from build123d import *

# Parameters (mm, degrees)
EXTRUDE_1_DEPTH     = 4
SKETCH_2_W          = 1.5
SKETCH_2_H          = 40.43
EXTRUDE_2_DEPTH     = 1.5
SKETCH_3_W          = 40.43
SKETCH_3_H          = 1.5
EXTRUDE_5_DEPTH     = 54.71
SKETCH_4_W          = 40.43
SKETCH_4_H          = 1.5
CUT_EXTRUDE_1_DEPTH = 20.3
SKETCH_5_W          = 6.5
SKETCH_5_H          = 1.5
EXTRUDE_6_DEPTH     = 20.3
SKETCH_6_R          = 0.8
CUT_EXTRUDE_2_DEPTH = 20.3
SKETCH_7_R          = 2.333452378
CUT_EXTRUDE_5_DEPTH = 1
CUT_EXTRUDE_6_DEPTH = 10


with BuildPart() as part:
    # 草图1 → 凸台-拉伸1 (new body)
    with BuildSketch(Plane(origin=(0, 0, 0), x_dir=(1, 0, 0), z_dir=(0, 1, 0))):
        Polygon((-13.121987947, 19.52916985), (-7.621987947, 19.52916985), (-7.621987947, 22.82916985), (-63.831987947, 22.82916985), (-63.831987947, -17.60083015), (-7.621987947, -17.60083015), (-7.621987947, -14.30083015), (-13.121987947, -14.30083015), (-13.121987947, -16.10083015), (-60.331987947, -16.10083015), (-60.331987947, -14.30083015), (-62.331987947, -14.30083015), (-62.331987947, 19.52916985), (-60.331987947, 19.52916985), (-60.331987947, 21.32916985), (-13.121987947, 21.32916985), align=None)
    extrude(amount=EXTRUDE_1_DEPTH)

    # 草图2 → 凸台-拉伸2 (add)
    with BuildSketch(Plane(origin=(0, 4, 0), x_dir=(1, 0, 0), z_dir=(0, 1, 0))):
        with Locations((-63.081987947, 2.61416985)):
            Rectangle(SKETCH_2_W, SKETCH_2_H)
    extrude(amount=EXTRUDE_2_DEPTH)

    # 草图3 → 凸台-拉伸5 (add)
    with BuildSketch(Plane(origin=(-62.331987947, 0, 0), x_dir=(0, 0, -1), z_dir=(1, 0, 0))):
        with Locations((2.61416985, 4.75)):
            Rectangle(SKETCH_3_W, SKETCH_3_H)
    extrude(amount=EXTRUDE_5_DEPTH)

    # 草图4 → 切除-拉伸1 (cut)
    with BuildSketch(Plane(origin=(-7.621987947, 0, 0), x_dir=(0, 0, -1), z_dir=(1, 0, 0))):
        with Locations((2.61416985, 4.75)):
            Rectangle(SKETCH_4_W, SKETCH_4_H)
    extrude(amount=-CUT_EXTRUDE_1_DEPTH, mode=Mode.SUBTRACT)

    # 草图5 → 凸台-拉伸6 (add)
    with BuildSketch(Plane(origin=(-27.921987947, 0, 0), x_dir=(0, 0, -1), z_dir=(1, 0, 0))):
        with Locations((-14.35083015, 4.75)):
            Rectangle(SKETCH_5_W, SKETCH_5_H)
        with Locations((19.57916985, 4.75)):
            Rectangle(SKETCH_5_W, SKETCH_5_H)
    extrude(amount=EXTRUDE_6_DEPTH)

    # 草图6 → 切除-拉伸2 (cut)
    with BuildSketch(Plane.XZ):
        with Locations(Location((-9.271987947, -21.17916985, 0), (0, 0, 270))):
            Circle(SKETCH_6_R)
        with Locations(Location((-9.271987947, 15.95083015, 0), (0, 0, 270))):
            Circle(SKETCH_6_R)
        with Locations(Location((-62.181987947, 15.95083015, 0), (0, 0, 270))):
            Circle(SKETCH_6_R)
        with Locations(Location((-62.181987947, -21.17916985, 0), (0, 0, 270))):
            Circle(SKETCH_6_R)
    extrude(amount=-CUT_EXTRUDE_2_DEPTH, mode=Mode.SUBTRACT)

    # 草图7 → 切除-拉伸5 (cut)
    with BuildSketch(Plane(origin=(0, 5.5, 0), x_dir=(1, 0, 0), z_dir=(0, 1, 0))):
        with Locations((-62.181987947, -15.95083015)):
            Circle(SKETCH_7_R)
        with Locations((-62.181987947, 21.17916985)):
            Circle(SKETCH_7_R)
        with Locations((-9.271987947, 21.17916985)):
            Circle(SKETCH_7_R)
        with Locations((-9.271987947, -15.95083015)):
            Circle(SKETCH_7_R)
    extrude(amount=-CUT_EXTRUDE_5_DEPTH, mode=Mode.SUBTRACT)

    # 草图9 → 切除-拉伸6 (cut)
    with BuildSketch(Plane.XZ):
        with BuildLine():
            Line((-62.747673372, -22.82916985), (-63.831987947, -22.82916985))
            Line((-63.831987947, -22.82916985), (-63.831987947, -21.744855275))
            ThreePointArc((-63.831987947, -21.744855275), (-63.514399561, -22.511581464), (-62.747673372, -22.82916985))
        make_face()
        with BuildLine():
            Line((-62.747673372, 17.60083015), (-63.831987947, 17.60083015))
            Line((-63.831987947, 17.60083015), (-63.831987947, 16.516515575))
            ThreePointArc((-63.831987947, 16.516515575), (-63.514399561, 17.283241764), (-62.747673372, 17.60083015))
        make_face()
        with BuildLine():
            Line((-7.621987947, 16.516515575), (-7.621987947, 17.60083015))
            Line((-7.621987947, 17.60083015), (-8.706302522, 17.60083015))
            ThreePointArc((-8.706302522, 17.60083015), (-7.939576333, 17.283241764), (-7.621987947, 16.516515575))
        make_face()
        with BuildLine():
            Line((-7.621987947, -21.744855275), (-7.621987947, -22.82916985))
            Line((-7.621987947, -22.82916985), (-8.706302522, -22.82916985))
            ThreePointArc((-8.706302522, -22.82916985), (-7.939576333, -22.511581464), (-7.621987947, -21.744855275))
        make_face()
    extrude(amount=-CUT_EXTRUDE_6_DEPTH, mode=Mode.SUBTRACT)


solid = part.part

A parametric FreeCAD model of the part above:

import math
import FreeCAD as App
import Part
import Sketcher

V = App.Vector
Q = App.Units.Quantity

doc = App.newDocument("Part")
body = doc.addObject("PartDesign::Body", "Body")

# Sketch on XZ plane
sketch1 = body.newObject("Sketcher::SketchObject", "Sketch")
sketch1.AttachmentSupport = (doc.getObject("XZ_Plane"), [""])
sketch1.MapMode = "FlatFace"
sketch1.addGeometry([
    Part.LineSegment(V(-13.1, -19.5, 0), V(-7.6, -19.5, 0)),  # 0
    Part.LineSegment(V(-7.6, -19.5, 0), V(-7.6, -22.8, 0)),  # 1
    Part.LineSegment(V(-7.6, -22.8, 0), V(-63.8, -22.8, 0)),  # 2
    Part.LineSegment(V(-63.8, -22.8, 0), V(-63.8, 17.6, 0)),  # 3
    Part.LineSegment(V(-63.8, 17.6, 0), V(-7.6, 17.6, 0)),  # 4
    Part.LineSegment(V(-7.6, 17.6, 0), V(-7.6, 14.3, 0)),  # 5
    Part.LineSegment(V(-7.6, 14.3, 0), V(-13.1, 14.3, 0)),  # 6
    Part.LineSegment(V(-13.1, 14.3, 0), V(-13.1, 16.1, 0)),  # 7
    Part.LineSegment(V(-13.1, 16.1, 0), V(-60.3, 16.1, 0)),  # 8
    Part.LineSegment(V(-60.3, 16.1, 0), V(-60.3, 14.3, 0)),  # 9
    Part.LineSegment(V(-60.3, 14.3, 0), V(-62.3, 14.3, 0)),  # 10
    Part.LineSegment(V(-62.3, 14.3, 0), V(-62.3, -19.5, 0)),  # 11
    Part.LineSegment(V(-62.3, -19.5, 0), V(-60.3, -19.5, 0)),  # 12
    Part.LineSegment(V(-60.3, -19.5, 0), V(-60.3, -21.3, 0)),  # 13
    Part.LineSegment(V(-60.3, -21.3, 0), V(-13.1, -21.3, 0)),  # 14
    Part.LineSegment(V(-13.1, -21.3, 0), V(-13.1, -19.5, 0)),  # 15
], False)
sketch1.addConstraint([
    Sketcher.Constraint("Coincident", 0, 2, 1, 1),
    Sketcher.Constraint("Coincident", 1, 2, 2, 1),
    Sketcher.Constraint("Coincident", 2, 2, 3, 1),
    Sketcher.Constraint("Coincident", 3, 2, 4, 1),
    Sketcher.Constraint("Coincident", 4, 2, 5, 1),
    Sketcher.Constraint("Coincident", 5, 2, 6, 1),
    Sketcher.Constraint("Coincident", 6, 2, 7, 1),
    Sketcher.Constraint("Coincident", 7, 2, 8, 1),
    Sketcher.Constraint("Coincident", 8, 2, 9, 1),
    Sketcher.Constraint("Coincident", 9, 2, 10, 1),
    Sketcher.Constraint("Coincident", 10, 2, 11, 1),
    Sketcher.Constraint("Coincident", 11, 2, 12, 1),
    Sketcher.Constraint("Coincident", 12, 2, 13, 1),
    Sketcher.Constraint("Coincident", 13, 2, 14, 1),
    Sketcher.Constraint("Coincident", 14, 2, 15, 1),
    Sketcher.Constraint("Coincident", 15, 2, 0, 1),
    Sketcher.Constraint("Horizontal", 0),
    Sketcher.Constraint("Vertical", 1),
    Sketcher.Constraint("Horizontal", 2),
    Sketcher.Constraint("Vertical", 3),
    Sketcher.Constraint("Horizontal", 4),
    Sketcher.Constraint("Vertical", 5),
    Sketcher.Constraint("Horizontal", 6),
    Sketcher.Constraint("Vertical", 7),
    Sketcher.Constraint("Horizontal", 8),
    Sketcher.Constraint("Vertical", 9),
    Sketcher.Constraint("Horizontal", 10),
    Sketcher.Constraint("Vertical", 11),
    Sketcher.Constraint("Horizontal", 12),
    Sketcher.Constraint("Vertical", 13),
    Sketcher.Constraint("Horizontal", 14),
    Sketcher.Constraint("Vertical", 15),
    Sketcher.Constraint("Horizontal", 6, 2, 9, 2),
    Sketcher.Constraint("Horizontal", 0, 2, 11, 2),
    Sketcher.Constraint("Vertical", 1, 2, 4, 2),
    Sketcher.Constraint("Vertical", 9, 2, 12, 2),
    Sketcher.Constraint("Vertical", 7, 2, 14, 2),
    Sketcher.Constraint("Equal", 1, 5),
    Sketcher.Constraint("Equal", 9, 13),
    Sketcher.Constraint("DistanceX", 10, 2, 10, 1, Q("2 mm")),
    Sketcher.Constraint("DistanceX", 0, 1, 0, 2, Q("5.5 mm")),
    Sketcher.Constraint("DistanceY", 1, 2, 1, 1, Q("3.3 mm")),
    Sketcher.Constraint("DistanceY", 7, 1, 7, 2, Q("1.8 mm")),
    Sketcher.Constraint("DistanceX", 2, 2, 2, 1, Q("56.21 mm")),
    Sketcher.Constraint("DistanceX", 8, 2, 8, 1, Q("47.21 mm")),
    Sketcher.Constraint("DistanceY", 3, 1, 3, 2, Q("40.43 mm")),
    Sketcher.Constraint("DistanceY", 0, 2, -1, 1, Q("19.52917 mm")),
    Sketcher.Constraint("DistanceX", 0, 2, -1, 1, Q("7.621988 mm")),
])
pad1 = body.newObject("PartDesign::Pad", "Pad")
pad1.Profile = sketch1
pad1.Length = 4
pad1.Reversed = True

# Sketch on XZ plane
sketch2 = body.newObject("Sketcher::SketchObject", "Sketch001")
sketch2.AttachmentSupport = (doc.getObject("XZ_Plane"), [""])
sketch2.MapMode = "FlatFace"
sketch2.AttachmentOffset = App.Placement(V(0, 0, -4), App.Rotation())
sketch2.addGeometry([
    Part.LineSegment(V(-63.8, -22.8, 0), V(-63.8, 17.6, 0)),
    Part.LineSegment(V(-63.8, 17.6, 0), V(-62.3, 17.6, 0)),
    Part.LineSegment(V(-62.3, 17.6, 0), V(-62.3, -22.8, 0)),
    Part.LineSegment(V(-62.3, -22.8, 0), V(-63.8, -22.8, 0)),
], False)
sketch2.addConstraint([
    Sketcher.Constraint("Coincident", 0, 2, 1, 1),
    Sketcher.Constraint("Coincident", 1, 2, 2, 1),
    Sketcher.Constraint("Coincident", 2, 2, 3, 1),
    Sketcher.Constraint("Coincident", 3, 2, 0, 1),
    Sketcher.Constraint("Vertical", 0),
    Sketcher.Constraint("Horizontal", 1),
    Sketcher.Constraint("Vertical", 2),
    Sketcher.Constraint("Horizontal", 3),
    Sketcher.Constraint("DistanceX", 1, 1, 1, 2, Q("1.5 mm")),
    Sketcher.Constraint("DistanceY", 0, 1, 0, 2, Q("40.43 mm")),
    Sketcher.Constraint("DistanceY", -1, 1, 0, 2, Q("17.60083 mm")),
    Sketcher.Constraint("DistanceX", 0, 2, -1, 1, Q("63.831988 mm")),
])
pad2 = body.newObject("PartDesign::Pad", "Pad001")
pad2.Profile = sketch2
pad2.Length = 1.5
pad2.Reversed = True

# Sketch on YZ plane
sketch3 = body.newObject("Sketcher::SketchObject", "Sketch002")
sketch3.AttachmentSupport = (doc.getObject("YZ_Plane"), [""])
sketch3.MapMode = "FlatFace"
sketch3.AttachmentOffset = App.Placement(V(0, 0, -62.331988), App.Rotation())
sketch3.addGeometry([
    Part.LineSegment(V(5.5, 17.6, 0), V(4, 17.6, 0)),
    Part.LineSegment(V(4, 17.6, 0), V(4, -22.8, 0)),
    Part.LineSegment(V(4, -22.8, 0), V(5.5, -22.8, 0)),
    Part.LineSegment(V(5.5, -22.8, 0), V(5.5, 17.6, 0)),
], False)
sketch3.addConstraint([
    Sketcher.Constraint("Coincident", 0, 2, 1, 1),
    Sketcher.Constraint("Coincident", 1, 2, 2, 1),
    Sketcher.Constraint("Coincident", 2, 2, 3, 1),
    Sketcher.Constraint("Coincident", 3, 2, 0, 1),
    Sketcher.Constraint("Horizontal", 0),
    Sketcher.Constraint("Vertical", 1),
    Sketcher.Constraint("Horizontal", 2),
    Sketcher.Constraint("Vertical", 3),
    Sketcher.Constraint("DistanceX", 0, 2, 0, 1, Q("1.5 mm")),
    Sketcher.Constraint("DistanceX", -1, 1, 0, 2, Q("4 mm")),
    Sketcher.Constraint("DistanceY", 1, 2, 1, 1, Q("40.43 mm")),
    Sketcher.Constraint("DistanceY", -1, 1, 0, 2, Q("17.60083 mm")),
])
pad3 = body.newObject("PartDesign::Pad", "Pad002")
pad3.Profile = sketch3
pad3.Length = 54.71

# Sketch on YZ plane
sketch4 = body.newObject("Sketcher::SketchObject", "Sketch003")
sketch4.AttachmentSupport = (doc.getObject("YZ_Plane"), [""])
sketch4.MapMode = "FlatFace"
sketch4.AttachmentOffset = App.Placement(V(0, 0, -7.621988), App.Rotation())
sketch4.addGeometry([
    Part.LineSegment(V(5.5, 17.6, 0), V(4, 17.6, 0)),
    Part.LineSegment(V(4, 17.6, 0), V(4, -22.8, 0)),
    Part.LineSegment(V(4, -22.8, 0), V(5.5, -22.8, 0)),
    Part.LineSegment(V(5.5, -22.8, 0), V(5.5, 17.6, 0)),
], False)
sketch4.addConstraint([
    Sketcher.Constraint("Coincident", 0, 2, 1, 1),
    Sketcher.Constraint("Coincident", 1, 2, 2, 1),
    Sketcher.Constraint("Coincident", 2, 2, 3, 1),
    Sketcher.Constraint("Coincident", 3, 2, 0, 1),
    Sketcher.Constraint("Horizontal", 0),
    Sketcher.Constraint("Vertical", 1),
    Sketcher.Constraint("Horizontal", 2),
    Sketcher.Constraint("Vertical", 3),
    Sketcher.Constraint("DistanceX", 0, 2, 0, 1, Q("1.5 mm")),
    Sketcher.Constraint("DistanceX", -1, 1, 0, 2, Q("4 mm")),
    Sketcher.Constraint("DistanceY", 1, 2, 1, 1, Q("40.43 mm")),
    Sketcher.Constraint("DistanceY", -1, 1, 0, 2, Q("17.60083 mm")),
])
pocket1 = body.newObject("PartDesign::Pocket", "Pocket")
pocket1.Profile = sketch4
pocket1.Length = 20.3

# Sketch on YZ plane
sketch5 = body.newObject("Sketcher::SketchObject", "Sketch004")
sketch5.AttachmentSupport = (doc.getObject("YZ_Plane"), [""])
sketch5.MapMode = "FlatFace"
sketch5.AttachmentOffset = App.Placement(V(0, 0, -27.921988), App.Rotation())
sketch5.addGeometry([
    Part.LineSegment(V(5.5, 17.6, 0), V(4, 17.6, 0)),  # 0
    Part.LineSegment(V(4, 17.6, 0), V(4, 11.1, 0)),  # 1
    Part.LineSegment(V(4, 11.1, 0), V(5.5, 11.1, 0)),  # 2
    Part.LineSegment(V(5.5, 11.1, 0), V(5.5, 17.6, 0)),  # 3
    Part.LineSegment(V(5.5, -16.3, 0), V(4, -16.3, 0)),  # 4
    Part.LineSegment(V(4, -16.3, 0), V(4, -22.8, 0)),  # 5
    Part.LineSegment(V(4, -22.8, 0), V(5.5, -22.8, 0)),  # 6
    Part.LineSegment(V(5.5, -22.8, 0), V(5.5, -16.3, 0)),  # 7
], False)
sketch5.addConstraint([
    Sketcher.Constraint("Coincident", 0, 2, 1, 1),
    Sketcher.Constraint("Coincident", 1, 2, 2, 1),
    Sketcher.Constraint("Coincident", 2, 2, 3, 1),
    Sketcher.Constraint("Coincident", 3, 2, 0, 1),
    Sketcher.Constraint("Coincident", 4, 2, 5, 1),
    Sketcher.Constraint("Coincident", 5, 2, 6, 1),
    Sketcher.Constraint("Coincident", 6, 2, 7, 1),
    Sketcher.Constraint("Coincident", 7, 2, 4, 1),
    Sketcher.Constraint("Horizontal", 0),
    Sketcher.Constraint("Vertical", 1),
    Sketcher.Constraint("Horizontal", 2),
    Sketcher.Constraint("Vertical", 3),
    Sketcher.Constraint("Horizontal", 4),
    Sketcher.Constraint("Vertical", 5),
    Sketcher.Constraint("Horizontal", 6),
    Sketcher.Constraint("Vertical", 7),
    Sketcher.Constraint("Vertical", 1, 2, 4, 2),
    Sketcher.Constraint("Vertical", 3, 2, 6, 2),
    Sketcher.Constraint("Equal", 3, 5),
    Sketcher.Constraint("DistanceX", 0, 2, 0, 1, Q("1.5 mm")),
    Sketcher.Constraint("DistanceY", 1, 2, 1, 1, Q("6.5 mm")),
    Sketcher.Constraint("DistanceX", -1, 1, 0, 2, Q("4 mm")),
    Sketcher.Constraint("DistanceY", 4, 2, 1, 2, Q("27.43 mm")),
    Sketcher.Constraint("DistanceY", -1, 1, 0, 2, Q("17.60083 mm")),
])
pad4 = body.newObject("PartDesign::Pad", "Pad003")
pad4.Profile = sketch5
pad4.Length = 20.3

# Sketch on XZ plane
sketch6 = body.newObject("Sketcher::SketchObject", "Sketch005")
sketch6.AttachmentSupport = (doc.getObject("XZ_Plane"), [""])
sketch6.MapMode = "FlatFace"
sketch6.addGeometry([
    Part.Circle(V(-9.3, -21.2, 0), V(0, 0, 1), 0.8),
    Part.Circle(V(-9.3, 16, 0), V(0, 0, 1), 0.8),
    Part.Circle(V(-62.2, 16, 0), V(0, 0, 1), 0.8),
    Part.Circle(V(-62.2, -21.2, 0), V(0, 0, 1), 0.8),
], False)
sketch6.addConstraint([
    Sketcher.Constraint("Equal", 0, 1),
    Sketcher.Constraint("Equal", 1, 2),
    Sketcher.Constraint("Equal", 2, 3),
    Sketcher.Constraint("Horizontal", 1, 3, 2, 3),
    Sketcher.Constraint("Horizontal", 0, 3, 3, 3),
    Sketcher.Constraint("Vertical", 0, 3, 1, 3),
    Sketcher.Constraint("Vertical", 2, 3, 3, 3),
    Sketcher.Constraint("Diameter", 0, Q("1.6 mm")),
    Sketcher.Constraint("DistanceY", 0, 3, 1, 3, Q("37.13 mm")),
    Sketcher.Constraint("DistanceX", 2, 3, 1, 3, Q("52.91 mm")),
    Sketcher.Constraint("DistanceY", 0, 3, -1, 1, Q("21.17917 mm")),
    Sketcher.Constraint("DistanceX", 0, 3, -1, 1, Q("9.271988 mm")),
])
pocket2 = body.newObject("PartDesign::Pocket", "Pocket001")
pocket2.Profile = sketch6
pocket2.Length = 20.3

# Sketch on XZ plane
sketch7 = body.newObject("Sketcher::SketchObject", "Sketch006")
sketch7.AttachmentSupport = (doc.getObject("XZ_Plane"), [""])
sketch7.MapMode = "FlatFace"
sketch7.AttachmentOffset = App.Placement(V(0, 0, -5.5), App.Rotation())
sketch7.addGeometry([
    Part.Circle(V(-62.2, 16, 0), V(0, 0, 1), 2.3),
    Part.Circle(V(-62.2, -21.2, 0), V(0, 0, 1), 2.3),
    Part.Circle(V(-9.3, -21.2, 0), V(0, 0, 1), 2.3),
    Part.Circle(V(-9.3, 16, 0), V(0, 0, 1), 2.3),
], False)
sketch7.addConstraint([
    Sketcher.Constraint("Equal", 0, 1),
    Sketcher.Constraint("Equal", 1, 2),
    Sketcher.Constraint("Equal", 2, 3),
    Sketcher.Constraint("Horizontal", 1, 3, 2, 3),
    Sketcher.Constraint("Horizontal", 0, 3, 3, 3),
    Sketcher.Constraint("Vertical", 0, 3, 1, 3),
    Sketcher.Constraint("Vertical", 2, 3, 3, 3),
    Sketcher.Constraint("DistanceY", 1, 3, 0, 3, Q("37.13 mm")),
    Sketcher.Constraint("DistanceX", 1, 3, 2, 3, Q("52.91 mm")),
    Sketcher.Constraint("Diameter", 0, Q("4.666905 mm")),
    Sketcher.Constraint("DistanceY", -1, 1, 0, 3, Q("15.95083 mm")),
    Sketcher.Constraint("DistanceX", 0, 3, -1, 1, Q("62.181988 mm")),
])
pocket3 = body.newObject("PartDesign::Pocket", "Pocket002")
pocket3.Profile = sketch7
pocket3.Length = 1
pocket3.Reversed = True

# Sketch on XZ plane
sketch8 = body.newObject("Sketcher::SketchObject", "Sketch007")
sketch8.AttachmentSupport = (doc.getObject("XZ_Plane"), [""])
sketch8.MapMode = "FlatFace"
sketch8.addGeometry([
    Part.LineSegment(V(-63.8, -22.8, 0), V(-62.7, -22.8, 0)),  # 0
    Part.ArcOfCircle(Part.Circle(V(-62.7, -21.7, 0), V(0, 0, 1), 1.1), math.radians(180), math.radians(270)),  # 1
    Part.LineSegment(V(-63.8, -21.7, 0), V(-63.8, -22.8, 0)),  # 2
    Part.LineSegment(V(-62.7, 17.6, 0), V(-63.8, 17.6, 0)),  # 3
    Part.LineSegment(V(-63.8, 17.6, 0), V(-63.8, 16.5, 0)),  # 4
    Part.ArcOfCircle(Part.Circle(V(-62.7, 16.5, 0), V(0, 0, 1), 1.1), math.radians(90), math.radians(180)),  # 5
    Part.LineSegment(V(-7.6, 16.5, 0), V(-7.6, 17.6, 0)),  # 6
    Part.LineSegment(V(-7.6, 17.6, 0), V(-8.7, 17.6, 0)),  # 7
    Part.ArcOfCircle(Part.Circle(V(-8.7, 16.5, 0), V(0, 0, 1), 1.1), math.radians(0), math.radians(90)),  # 8
    Part.LineSegment(V(-7.6, -22.8, 0), V(-7.6, -21.7, 0)),  # 9
    Part.ArcOfCircle(Part.Circle(V(-8.7, -21.7, 0), V(0, 0, 1), 1.1), math.radians(-90), math.radians(0)),  # 10
    Part.LineSegment(V(-8.7, -22.8, 0), V(-7.6, -22.8, 0)),  # 11
], False)
sketch8.addConstraint([
    Sketcher.Constraint("Tangent", 0, 2, 1, 2),
    Sketcher.Constraint("Tangent", 1, 1, 2, 1),
    Sketcher.Constraint("Coincident", 2, 2, 0, 1),
    Sketcher.Constraint("Coincident", 3, 2, 4, 1),
    Sketcher.Constraint("Tangent", 4, 2, 5, 2),
    Sketcher.Constraint("Tangent", 5, 1, 3, 1),
    Sketcher.Constraint("Coincident", 6, 2, 7, 1),
    Sketcher.Constraint("Tangent", 7, 2, 8, 2),
    Sketcher.Constraint("Tangent", 8, 1, 6, 1),
    Sketcher.Constraint("Tangent", 9, 2, 10, 2),
    Sketcher.Constraint("Tangent", 10, 1, 11, 1),
    Sketcher.Constraint("Coincident", 11, 2, 9, 1),
    Sketcher.Constraint("Horizontal", 0),
    Sketcher.Constraint("Vertical", 2),
    Sketcher.Constraint("Horizontal", 3),
    Sketcher.Constraint("Vertical", 4),
    Sketcher.Constraint("Vertical", 6),
    Sketcher.Constraint("Horizontal", 7),
    Sketcher.Constraint("Vertical", 9),
    Sketcher.Constraint("Horizontal", 11),
    Sketcher.Constraint("Equal", 1, 5),
    Sketcher.Constraint("Equal", 5, 8),
    Sketcher.Constraint("Equal", 8, 10),
    Sketcher.Constraint("Horizontal", 5, 3, 8, 3),
    Sketcher.Constraint("Horizontal", 1, 3, 10, 3),
    Sketcher.Constraint("Vertical", 1, 3, 5, 3),
    Sketcher.Constraint("Vertical", 8, 3, 10, 3),
    Sketcher.Constraint("DistanceY", 2, 2, 3, 2, Q("40.43 mm")),
    Sketcher.Constraint("DistanceX", 3, 2, 6, 2, Q("56.21 mm")),
    Sketcher.Constraint("Radius", 1, Q("1.084315 mm")),
    Sketcher.Constraint("DistanceY", 0, 2, -1, 1, Q("22.82917 mm")),
    Sketcher.Constraint("DistanceX", 1, 3, -1, 1, Q("62.747673 mm")),
])
pocket4 = body.newObject("PartDesign::Pocket", "Pocket003")
pocket4.Profile = sketch8
pocket4.Length = 10

doc.recompute()
